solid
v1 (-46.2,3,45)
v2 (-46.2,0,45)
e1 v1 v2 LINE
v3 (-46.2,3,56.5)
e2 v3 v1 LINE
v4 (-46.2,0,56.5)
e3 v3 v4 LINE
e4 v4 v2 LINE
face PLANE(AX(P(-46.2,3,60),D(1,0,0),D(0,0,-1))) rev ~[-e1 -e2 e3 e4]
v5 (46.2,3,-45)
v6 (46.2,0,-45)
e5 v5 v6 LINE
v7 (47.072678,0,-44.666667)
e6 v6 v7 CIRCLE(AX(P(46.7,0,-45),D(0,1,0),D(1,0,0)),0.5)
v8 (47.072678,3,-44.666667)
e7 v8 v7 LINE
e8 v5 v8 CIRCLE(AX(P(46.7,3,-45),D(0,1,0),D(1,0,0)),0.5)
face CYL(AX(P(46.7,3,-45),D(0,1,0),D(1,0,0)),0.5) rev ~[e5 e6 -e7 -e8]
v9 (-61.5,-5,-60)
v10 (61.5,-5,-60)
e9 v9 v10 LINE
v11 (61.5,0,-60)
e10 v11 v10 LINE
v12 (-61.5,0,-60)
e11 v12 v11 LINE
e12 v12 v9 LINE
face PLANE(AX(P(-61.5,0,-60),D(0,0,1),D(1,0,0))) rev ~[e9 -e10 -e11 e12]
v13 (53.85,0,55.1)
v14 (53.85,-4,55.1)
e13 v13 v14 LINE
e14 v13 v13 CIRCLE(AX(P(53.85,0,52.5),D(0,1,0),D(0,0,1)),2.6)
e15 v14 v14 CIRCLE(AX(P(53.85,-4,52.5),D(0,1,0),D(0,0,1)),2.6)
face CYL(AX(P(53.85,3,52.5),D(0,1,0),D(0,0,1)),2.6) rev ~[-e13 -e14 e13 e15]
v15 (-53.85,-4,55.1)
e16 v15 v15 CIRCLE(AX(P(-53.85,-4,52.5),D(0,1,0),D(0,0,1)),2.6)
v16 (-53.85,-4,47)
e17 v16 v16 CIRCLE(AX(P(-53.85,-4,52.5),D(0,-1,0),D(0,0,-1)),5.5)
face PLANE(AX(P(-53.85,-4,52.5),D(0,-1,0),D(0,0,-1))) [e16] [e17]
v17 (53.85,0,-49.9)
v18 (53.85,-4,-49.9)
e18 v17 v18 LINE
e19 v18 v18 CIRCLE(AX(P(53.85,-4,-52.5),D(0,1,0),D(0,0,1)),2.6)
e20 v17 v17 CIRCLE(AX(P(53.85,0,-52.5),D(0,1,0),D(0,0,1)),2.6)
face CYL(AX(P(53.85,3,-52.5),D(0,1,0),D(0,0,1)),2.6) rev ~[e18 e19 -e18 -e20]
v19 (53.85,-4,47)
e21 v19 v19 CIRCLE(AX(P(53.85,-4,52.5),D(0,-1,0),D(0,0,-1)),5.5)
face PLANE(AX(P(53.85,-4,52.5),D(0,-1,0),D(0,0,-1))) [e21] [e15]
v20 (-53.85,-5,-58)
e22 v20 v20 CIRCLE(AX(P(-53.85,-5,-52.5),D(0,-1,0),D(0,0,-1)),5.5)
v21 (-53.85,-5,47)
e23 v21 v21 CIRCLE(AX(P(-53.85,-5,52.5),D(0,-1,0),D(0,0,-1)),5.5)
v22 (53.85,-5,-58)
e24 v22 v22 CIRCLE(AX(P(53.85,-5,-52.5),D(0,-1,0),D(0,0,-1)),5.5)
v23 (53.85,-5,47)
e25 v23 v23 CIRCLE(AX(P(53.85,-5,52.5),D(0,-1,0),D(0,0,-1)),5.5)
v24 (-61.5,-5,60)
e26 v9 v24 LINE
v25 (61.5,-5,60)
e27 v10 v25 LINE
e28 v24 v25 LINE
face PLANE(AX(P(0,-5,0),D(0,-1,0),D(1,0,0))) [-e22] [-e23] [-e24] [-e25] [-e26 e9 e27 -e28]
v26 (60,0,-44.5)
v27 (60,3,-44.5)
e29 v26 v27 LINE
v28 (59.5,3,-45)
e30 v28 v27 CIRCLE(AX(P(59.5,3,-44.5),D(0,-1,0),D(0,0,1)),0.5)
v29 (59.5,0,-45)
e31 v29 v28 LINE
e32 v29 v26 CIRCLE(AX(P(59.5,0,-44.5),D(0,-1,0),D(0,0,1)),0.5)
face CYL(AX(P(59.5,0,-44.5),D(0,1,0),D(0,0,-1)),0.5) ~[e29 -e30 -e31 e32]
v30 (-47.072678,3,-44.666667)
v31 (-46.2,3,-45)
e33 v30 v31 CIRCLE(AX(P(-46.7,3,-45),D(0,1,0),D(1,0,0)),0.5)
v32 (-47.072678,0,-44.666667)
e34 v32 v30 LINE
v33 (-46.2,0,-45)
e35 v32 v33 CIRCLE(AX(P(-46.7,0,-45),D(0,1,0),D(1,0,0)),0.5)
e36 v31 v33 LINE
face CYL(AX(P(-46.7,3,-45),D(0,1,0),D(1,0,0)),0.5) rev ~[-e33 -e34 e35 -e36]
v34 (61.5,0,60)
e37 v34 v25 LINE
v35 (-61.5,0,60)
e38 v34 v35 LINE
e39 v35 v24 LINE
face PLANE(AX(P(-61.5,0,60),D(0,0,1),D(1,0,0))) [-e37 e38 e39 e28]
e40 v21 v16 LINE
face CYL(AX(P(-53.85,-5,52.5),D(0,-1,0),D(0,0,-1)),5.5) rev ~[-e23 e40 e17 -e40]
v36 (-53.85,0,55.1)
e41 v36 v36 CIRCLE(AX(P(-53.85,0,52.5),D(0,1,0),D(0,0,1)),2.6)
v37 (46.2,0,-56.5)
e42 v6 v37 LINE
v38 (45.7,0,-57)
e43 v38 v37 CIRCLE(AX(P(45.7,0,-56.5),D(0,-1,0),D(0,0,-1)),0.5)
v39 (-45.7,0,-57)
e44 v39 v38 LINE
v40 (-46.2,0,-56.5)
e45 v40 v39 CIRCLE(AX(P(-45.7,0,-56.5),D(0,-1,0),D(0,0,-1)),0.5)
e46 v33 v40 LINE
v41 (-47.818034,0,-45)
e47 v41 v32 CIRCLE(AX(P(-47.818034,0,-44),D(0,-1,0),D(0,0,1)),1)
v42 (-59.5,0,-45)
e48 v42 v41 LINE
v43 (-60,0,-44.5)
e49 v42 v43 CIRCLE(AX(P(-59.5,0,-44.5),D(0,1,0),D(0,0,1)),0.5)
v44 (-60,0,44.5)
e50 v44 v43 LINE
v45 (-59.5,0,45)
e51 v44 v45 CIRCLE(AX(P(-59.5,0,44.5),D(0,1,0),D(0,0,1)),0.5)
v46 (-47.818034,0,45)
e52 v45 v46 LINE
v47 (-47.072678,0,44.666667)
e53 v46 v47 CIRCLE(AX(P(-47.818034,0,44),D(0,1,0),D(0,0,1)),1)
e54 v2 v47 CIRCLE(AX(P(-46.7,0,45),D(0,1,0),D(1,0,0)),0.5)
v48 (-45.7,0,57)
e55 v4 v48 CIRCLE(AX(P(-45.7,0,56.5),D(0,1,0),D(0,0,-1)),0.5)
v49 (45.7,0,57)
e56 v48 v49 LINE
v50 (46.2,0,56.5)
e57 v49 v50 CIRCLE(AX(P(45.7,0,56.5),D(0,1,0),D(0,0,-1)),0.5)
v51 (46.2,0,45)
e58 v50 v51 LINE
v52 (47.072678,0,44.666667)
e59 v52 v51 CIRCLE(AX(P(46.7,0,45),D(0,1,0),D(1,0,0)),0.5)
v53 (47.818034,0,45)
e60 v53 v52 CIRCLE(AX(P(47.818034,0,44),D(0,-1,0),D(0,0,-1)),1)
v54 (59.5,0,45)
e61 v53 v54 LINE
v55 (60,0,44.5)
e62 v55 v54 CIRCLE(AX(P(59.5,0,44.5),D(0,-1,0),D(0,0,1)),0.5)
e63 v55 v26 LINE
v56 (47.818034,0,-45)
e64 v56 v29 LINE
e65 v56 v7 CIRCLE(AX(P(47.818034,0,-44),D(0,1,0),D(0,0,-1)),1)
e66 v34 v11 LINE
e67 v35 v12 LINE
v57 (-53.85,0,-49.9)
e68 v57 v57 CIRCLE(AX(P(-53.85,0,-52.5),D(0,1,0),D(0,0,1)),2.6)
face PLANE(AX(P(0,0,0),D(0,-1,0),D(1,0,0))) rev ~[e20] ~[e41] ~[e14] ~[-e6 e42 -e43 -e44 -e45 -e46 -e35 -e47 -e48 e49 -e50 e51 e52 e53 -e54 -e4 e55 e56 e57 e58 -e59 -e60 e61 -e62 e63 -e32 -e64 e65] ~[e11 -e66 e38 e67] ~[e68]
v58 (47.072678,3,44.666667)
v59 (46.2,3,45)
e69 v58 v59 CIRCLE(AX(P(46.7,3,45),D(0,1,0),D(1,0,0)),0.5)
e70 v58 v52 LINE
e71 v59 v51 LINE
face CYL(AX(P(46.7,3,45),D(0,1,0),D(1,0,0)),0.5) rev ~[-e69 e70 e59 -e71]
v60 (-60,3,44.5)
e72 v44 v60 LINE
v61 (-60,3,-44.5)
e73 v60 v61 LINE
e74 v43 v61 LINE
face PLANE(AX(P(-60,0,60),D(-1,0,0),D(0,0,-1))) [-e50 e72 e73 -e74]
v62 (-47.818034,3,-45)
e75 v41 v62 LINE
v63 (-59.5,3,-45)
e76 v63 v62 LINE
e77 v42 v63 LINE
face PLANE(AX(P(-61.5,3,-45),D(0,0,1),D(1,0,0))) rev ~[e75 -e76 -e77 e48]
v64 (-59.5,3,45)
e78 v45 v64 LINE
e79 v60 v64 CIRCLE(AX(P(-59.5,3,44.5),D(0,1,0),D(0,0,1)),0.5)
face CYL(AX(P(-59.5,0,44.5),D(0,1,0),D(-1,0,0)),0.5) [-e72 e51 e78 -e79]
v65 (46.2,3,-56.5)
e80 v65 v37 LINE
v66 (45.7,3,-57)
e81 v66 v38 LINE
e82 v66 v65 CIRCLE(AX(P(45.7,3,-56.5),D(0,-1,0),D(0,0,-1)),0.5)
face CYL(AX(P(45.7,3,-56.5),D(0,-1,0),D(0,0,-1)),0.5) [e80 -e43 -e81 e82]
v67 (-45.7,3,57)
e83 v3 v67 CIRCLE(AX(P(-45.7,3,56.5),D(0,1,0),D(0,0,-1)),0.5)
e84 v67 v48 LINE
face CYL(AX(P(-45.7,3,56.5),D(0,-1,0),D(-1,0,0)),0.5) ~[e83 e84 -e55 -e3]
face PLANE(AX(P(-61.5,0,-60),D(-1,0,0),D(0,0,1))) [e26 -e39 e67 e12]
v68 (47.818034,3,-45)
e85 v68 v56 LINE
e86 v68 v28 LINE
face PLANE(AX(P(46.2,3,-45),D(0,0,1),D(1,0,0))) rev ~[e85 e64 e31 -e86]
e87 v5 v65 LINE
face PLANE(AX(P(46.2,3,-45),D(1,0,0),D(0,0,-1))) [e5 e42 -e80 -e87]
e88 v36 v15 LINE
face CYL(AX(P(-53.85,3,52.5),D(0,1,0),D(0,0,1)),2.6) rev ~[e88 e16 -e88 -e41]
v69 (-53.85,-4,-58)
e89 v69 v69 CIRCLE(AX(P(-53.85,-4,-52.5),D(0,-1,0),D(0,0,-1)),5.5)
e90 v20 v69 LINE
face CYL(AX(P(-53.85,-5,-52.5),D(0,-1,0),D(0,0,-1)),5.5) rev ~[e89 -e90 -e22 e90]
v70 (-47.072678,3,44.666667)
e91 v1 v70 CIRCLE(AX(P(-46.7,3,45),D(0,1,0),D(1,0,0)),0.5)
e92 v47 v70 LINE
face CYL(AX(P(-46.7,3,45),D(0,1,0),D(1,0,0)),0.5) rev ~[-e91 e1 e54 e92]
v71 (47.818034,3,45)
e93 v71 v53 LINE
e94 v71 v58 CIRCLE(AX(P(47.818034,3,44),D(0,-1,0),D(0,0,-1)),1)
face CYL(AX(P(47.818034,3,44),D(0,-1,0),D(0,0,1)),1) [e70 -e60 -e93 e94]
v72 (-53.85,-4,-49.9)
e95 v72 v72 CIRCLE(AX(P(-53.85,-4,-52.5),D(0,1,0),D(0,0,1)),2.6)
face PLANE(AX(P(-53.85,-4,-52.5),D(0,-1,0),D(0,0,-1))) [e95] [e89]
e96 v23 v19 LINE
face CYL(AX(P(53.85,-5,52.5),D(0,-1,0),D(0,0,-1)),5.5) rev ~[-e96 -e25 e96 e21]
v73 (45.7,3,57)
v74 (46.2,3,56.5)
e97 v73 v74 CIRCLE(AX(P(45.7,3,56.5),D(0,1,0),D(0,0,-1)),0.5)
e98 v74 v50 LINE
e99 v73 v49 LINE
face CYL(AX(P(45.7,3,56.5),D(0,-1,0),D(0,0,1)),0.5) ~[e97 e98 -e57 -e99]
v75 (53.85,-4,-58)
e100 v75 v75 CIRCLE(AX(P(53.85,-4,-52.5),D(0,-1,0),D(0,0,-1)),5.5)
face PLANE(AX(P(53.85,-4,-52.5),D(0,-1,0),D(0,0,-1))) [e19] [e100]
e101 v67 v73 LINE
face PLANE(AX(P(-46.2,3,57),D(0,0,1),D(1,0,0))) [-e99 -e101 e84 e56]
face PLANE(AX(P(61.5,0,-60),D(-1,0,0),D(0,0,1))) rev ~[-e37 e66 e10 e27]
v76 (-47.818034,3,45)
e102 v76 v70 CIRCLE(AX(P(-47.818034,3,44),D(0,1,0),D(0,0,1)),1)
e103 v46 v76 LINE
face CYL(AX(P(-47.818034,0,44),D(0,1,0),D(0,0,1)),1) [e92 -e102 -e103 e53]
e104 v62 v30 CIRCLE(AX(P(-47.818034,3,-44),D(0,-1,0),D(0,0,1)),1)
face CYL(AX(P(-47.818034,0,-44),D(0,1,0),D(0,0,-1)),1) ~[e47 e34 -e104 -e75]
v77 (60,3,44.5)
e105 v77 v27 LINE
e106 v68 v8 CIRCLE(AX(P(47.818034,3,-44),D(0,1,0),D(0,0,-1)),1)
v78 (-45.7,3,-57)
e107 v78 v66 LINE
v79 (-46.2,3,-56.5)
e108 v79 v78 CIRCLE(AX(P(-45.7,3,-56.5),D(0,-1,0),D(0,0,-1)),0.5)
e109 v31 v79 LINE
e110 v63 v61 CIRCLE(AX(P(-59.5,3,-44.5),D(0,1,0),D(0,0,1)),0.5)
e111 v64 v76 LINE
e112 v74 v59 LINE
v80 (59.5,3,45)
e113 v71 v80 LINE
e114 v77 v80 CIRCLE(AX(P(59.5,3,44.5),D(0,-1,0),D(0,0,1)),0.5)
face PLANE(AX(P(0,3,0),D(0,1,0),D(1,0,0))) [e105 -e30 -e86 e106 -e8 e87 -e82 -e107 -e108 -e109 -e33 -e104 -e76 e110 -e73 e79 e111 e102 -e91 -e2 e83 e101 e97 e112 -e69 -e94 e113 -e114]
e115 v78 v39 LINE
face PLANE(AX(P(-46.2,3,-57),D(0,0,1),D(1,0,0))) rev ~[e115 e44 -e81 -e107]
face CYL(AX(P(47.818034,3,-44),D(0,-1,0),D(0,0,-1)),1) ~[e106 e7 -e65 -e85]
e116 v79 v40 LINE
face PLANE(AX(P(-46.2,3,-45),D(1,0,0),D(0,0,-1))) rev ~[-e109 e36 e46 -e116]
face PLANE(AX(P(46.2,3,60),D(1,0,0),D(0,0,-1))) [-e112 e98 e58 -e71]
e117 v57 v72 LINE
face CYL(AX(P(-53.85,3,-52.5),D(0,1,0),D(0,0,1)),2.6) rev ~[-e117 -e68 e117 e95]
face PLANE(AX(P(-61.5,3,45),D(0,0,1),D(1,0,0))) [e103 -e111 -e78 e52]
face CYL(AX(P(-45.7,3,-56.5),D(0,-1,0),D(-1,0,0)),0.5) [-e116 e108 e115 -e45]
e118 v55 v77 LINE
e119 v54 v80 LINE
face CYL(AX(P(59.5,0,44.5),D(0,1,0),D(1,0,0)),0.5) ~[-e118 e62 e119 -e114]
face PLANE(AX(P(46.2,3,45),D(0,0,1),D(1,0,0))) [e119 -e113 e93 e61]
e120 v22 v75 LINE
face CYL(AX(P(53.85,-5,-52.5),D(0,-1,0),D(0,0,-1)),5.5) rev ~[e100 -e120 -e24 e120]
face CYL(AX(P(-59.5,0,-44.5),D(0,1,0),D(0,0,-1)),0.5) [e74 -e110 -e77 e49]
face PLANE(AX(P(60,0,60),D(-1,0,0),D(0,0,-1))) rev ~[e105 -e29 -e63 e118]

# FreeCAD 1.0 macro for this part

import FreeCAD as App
import Part
import Sketcher

V = App.Vector


def edges_at(feature, points):
    """Names of the edges that pass closest to the given points."""
    edges = feature.Shape.Edges
    near = lambda p: min(range(len(edges)), key=lambda i: edges[i].distToShape(Part.Vertex(*p))[0])
    return sorted({f"Edge{near(p) + 1}" for p in points})


def add_polygon(sketch, points):
    """Adds a closed chain of lines whose ends are joined by coincident constraints."""
    first, n = sketch.GeometryCount, len(points)
    for a, b in zip(points, points[1:] + points[:1]):
        sketch.addGeometry(Part.LineSegment(App.Vector(*a, 0), App.Vector(*b, 0)), False)
    for i in range(n):
        sketch.addConstraint(Sketcher.Constraint("Coincident", first + i, 2, first + (i + 1) % n, 1))

doc = App.newDocument("Part")
body = doc.addObject("PartDesign::Body", "Body")

# Sketch on XZ plane
sketch1 = body.newObject("Sketcher::SketchObject", "Sketch")
sketch1.AttachmentSupport = (doc.getObject("XZ_Plane"), [""])
sketch1.MapMode = "FlatFace"
add_polygon(sketch1, [(-60, -60), (-60, 60), (60, 60), (60, -60)])  # lines 0-3
sketch1.addConstraint([
    Sketcher.Constraint("Vertical", 0),
    Sketcher.Constraint("Horizontal", 1),
    Sketcher.Constraint("Vertical", 2),
    Sketcher.Constraint("Horizontal", 3),
    Sketcher.Constraint("Symmetric", 0, 2, 2, 2, -1, 1),
    Sketcher.Constraint("Equal", 3, 0),
    Sketcher.Constraint("DistanceX", 1, 1, 1, 2, 120.0),
])
pad1 = body.newObject("PartDesign::Pad", "Pad")
pad1.Profile = sketch1
pad1.Length = 3
pad1.Reversed = True

# Sketch on XZ plane
sketch2 = body.newObject("Sketcher::SketchObject", "Sketch001")
sketch2.AttachmentSupport = (doc.getObject("XZ_Plane"), [""])
sketch2.MapMode = "FlatFace"
add_polygon(sketch2, [(-61.5, 60), (-61.5, -60), (61.5, -60), (61.5, 60)])  # lines 0-3
sketch2.addConstraint([
    Sketcher.Constraint("Vertical", 0),
    Sketcher.Constraint("Horizontal", 1),
    Sketcher.Constraint("Vertical", 2),
    Sketcher.Constraint("Horizontal", 3),
    Sketcher.Constraint("Symmetric", 0, 2, 2, 2, -1, 1),
    Sketcher.Constraint("DistanceX", 1, 1, 1, 2, 123.0),
    Sketcher.Constraint("DistanceY", 0, 2, 0, 1, 120.0),
])
pad2 = body.newObject("PartDesign::Pad", "Pad001")
pad2.Profile = sketch2
pad2.Length = 5

# Sketch on XZ plane
sketch3 = body.newObject("Sketcher::SketchObject", "Sketch002")
sketch3.AttachmentSupport = (doc.getObject("XZ_Plane"), [""])
sketch3.MapMode = "FlatFace"
sketch3.AttachmentOffset = App.Placement(V(0, 0, -3), App.Rotation())
add_polygon(sketch3, [(-61.5, -60), (-61.5, -45), (-46.2, -45), (-46.2, -60)])  # lines 0-3
add_polygon(sketch3, [(46.2, -60), (46.2, -45), (61.5, -45), (61.5, -60)])  # lines 4-7
add_polygon(sketch3, [(-61.5, 45), (-61.5, 60), (-46.2, 60), (-46.2, 45)])  # lines 8-11
add_polygon(sketch3, [(46.2, 45), (46.2, 60), (61.5, 60), (61.5, 45)])  # lines 12-15
sketch3.addConstraint([
    Sketcher.Constraint("Vertical", 0),
    Sketcher.Constraint("Horizontal", 1),
    Sketcher.Constraint("Vertical", 2),
    Sketcher.Constraint("Horizontal", 3),
    Sketcher.Constraint("Vertical", 4),
    Sketcher.Constraint("Horizontal", 5),
    Sketcher.Constraint("Vertical", 6),
    Sketcher.Constraint("Horizontal", 7),
    Sketcher.Constraint("Vertical", 8),
    Sketcher.Constraint("Horizontal", 9),
    Sketcher.Constraint("Vertical", 10),
    Sketcher.Constraint("Horizontal", 11),
    Sketcher.Constraint("Vertical", 12),
    Sketcher.Constraint("Horizontal", 13),
    Sketcher.Constraint("Vertical", 14),
    Sketcher.Constraint("Horizontal", 15),
    Sketcher.Constraint("Symmetric", 6, 2, 8, 2, -1, 1),
    Sketcher.Constraint("Symmetric", 4, 2, 10, 2, -1, 1),
    Sketcher.Constraint("Symmetric", 2, 2, 12, 2, -1, 1),
    Sketcher.Constraint("Symmetric", 0, 2, 14, 2, -1, 1),
    Sketcher.Constraint("Symmetric", 1, 2, 4, 2, -2),
    Sketcher.Constraint("Symmetric", 3, 2, 6, 2, -2),
    Sketcher.Constraint("DistanceY", 0, 1, 0, 2, 15.0),
    Sketcher.Constraint("DistanceX", 1, 1, 1, 2, 15.3),
    Sketcher.Constraint("DistanceY", 0, 2, -1, 1, 45.0),
    Sketcher.Constraint("DistanceX", 0, 2, 5, 2, 123.0),
])
pocket1 = body.newObject("PartDesign::Pocket", "Pocket")
pocket1.Profile = sketch3
pocket1.Length = 3
pocket1.Reversed = True

# Sketch on XZ plane
sketch4 = body.newObject("Sketcher::SketchObject", "Sketch003")
sketch4.AttachmentSupport = (doc.getObject("XZ_Plane"), [""])
sketch4.MapMode = "FlatFace"
sketch4.AttachmentOffset = App.Placement(V(0, 0, -3), App.Rotation())
sketch4.addGeometry([
    Part.Circle(V(-53.85, -52.5, 0), V(0, 0, 1), 2.6),
    Part.Circle(V(53.85, -52.5, 0), V(0, 0, 1), 2.6),
    Part.Circle(V(-53.85, 52.5, 0), V(0, 0, 1), 2.6),
    Part.Circle(V(53.85, 52.5, 0), V(0, 0, 1), 2.6),
], False)
sketch4.addConstraint([
    Sketcher.Constraint("Equal", 0, 1),
    Sketcher.Constraint("Equal", 1, 2),
    Sketcher.Constraint("Equal", 2, 3),
    Sketcher.Constraint("Symmetric", 1, 3, 2, 3, -1, 1),
    Sketcher.Constraint("Symmetric", 0, 3, 3, 3, -1, 1),
    Sketcher.Constraint("Symmetric", 0, 3, 1, 3, -2),
    Sketcher.Constraint("Diameter", 0, 5.2),
    Sketcher.Constraint("DistanceY", 0, 3, 2, 3, 105.0),
    Sketcher.Constraint("DistanceX", 0, 3, 1, 3, 107.7),
])
pocket2 = body.newObject("PartDesign::Pocket", "Pocket001")
pocket2.Profile = sketch4
pocket2.Type = "ThroughAll"
pocket2.Reversed = True

# Sketch on XZ plane
sketch5 = body.newObject("Sketcher::SketchObject", "Sketch004")
sketch5.AttachmentSupport = (doc.getObject("XZ_Plane"), [""])
sketch5.MapMode = "FlatFace"
sketch5.AttachmentOffset = App.Placement(V(0, 0, 5), App.Rotation())
sketch5.addGeometry([
    Part.Circle(V(-53.85, 52.5, 0), V(0, 0, 1), 5.5),
    Part.Circle(V(-53.85, -52.5, 0), V(0, 0, 1), 5.5),
    Part.Circle(V(53.85, 52.5, 0), V(0, 0, 1), 5.5),
    Part.Circle(V(53.85, -52.5, 0), V(0, 0, 1), 5.5),
], False)
sketch5.addConstraint([
    Sketcher.Constraint("Equal", 0, 1),
    Sketcher.Constraint("Equal", 1, 2),
    Sketcher.Constraint("Equal", 2, 3),
    Sketcher.Constraint("Symmetric", 1, 3, 2, 3, -1, 1),
    Sketcher.Constraint("Symmetric", 0, 3, 3, 3, -1, 1),
    Sketcher.Constraint("Symmetric", 0, 3, 2, 3, -2),
    Sketcher.Constraint("Diameter", 0, 11.0),
    Sketcher.Constraint("DistanceY", 1, 3, 0, 3, 105.0),
    Sketcher.Constraint("DistanceX", 0, 3, 2, 3, 107.7),
])
pocket3 = body.newObject("PartDesign::Pocket", "Pocket002")
pocket3.Profile = sketch5
pocket3.Length = 1

# Sketch on XZ plane
sketch6 = body.newObject("Sketcher::SketchObject", "Sketch005")
sketch6.AttachmentSupport = (doc.getObject("XZ_Plane"), [""])
sketch6.MapMode = "FlatFace"
sketch6.AttachmentOffset = App.Placement(V(0, 0, -3), App.Rotation())
add_polygon(sketch6, [(-46.2, -60), (-46.2, -57), (46.2, -57), (46.2, -60)])  # lines 0-3
add_polygon(sketch6, [(-46.2, 57), (-46.2, 60), (46.2, 60), (46.2, 57)])  # lines 4-7
sketch6.addConstraint([
    Sketcher.Constraint("Vertical", 0),
    Sketcher.Constraint("Horizontal", 1),
    Sketcher.Constraint("Vertical", 2),
    Sketcher.Constraint("Horizontal", 3),
    Sketcher.Constraint("Vertical", 4),
    Sketcher.Constraint("Horizontal", 5),
    Sketcher.Constraint("Vertical", 6),
    Sketcher.Constraint("Horizontal", 7),
    Sketcher.Constraint("Symmetric", 2, 2, 4, 2, -1, 1),
    Sketcher.Constraint("Symmetric", 0, 2, 6, 2, -1, 1),
    Sketcher.Constraint("Vertical", 3, 2, 4, 2),
    Sketcher.Constraint("DistanceY", 0, 1, 0, 2, 3.0),
    Sketcher.Constraint("DistanceX", 1, 1, 1, 2, 92.4),
    Sketcher.Constraint("DistanceY", 0, 2, -1, 1, 57.0),
])
pocket4 = body.newObject("PartDesign::Pocket", "Pocket003")
pocket4.Profile = sketch6
pocket4.Length = 3
pocket4.Reversed = True

# Sketch on XZ plane
sketch7 = body.newObject("Sketcher::SketchObject", "Sketch006")
sketch7.AttachmentSupport = (doc.getObject("XZ_Plane"), [""])
sketch7.MapMode = "FlatFace"
sketch7.AttachmentOffset = App.Placement(V(0, 0, -3), App.Rotation())
sketch7.addGeometry([
    Part.Circle(V(-46.7, -45, 0), V(0, 0, 1), 0.5),
    Part.Circle(V(46.7, -45, 0), V(0, 0, 1), 0.5),
    Part.Circle(V(-46.7, 45, 0), V(0, 0, 1), 0.5),
    Part.Circle(V(46.7, 45, 0), V(0, 0, 1), 0.5),
], False)
sketch7.addConstraint([
    Sketcher.Constraint("Equal", 0, 1),
    Sketcher.Constraint("Equal", 1, 2),
    Sketcher.Constraint("Equal", 2, 3),
    Sketcher.Constraint("Symmetric", 1, 3, 2, 3, -1, 1),
    Sketcher.Constraint("Symmetric", 0, 3, 3, 3, -1, 1),
    Sketcher.Constraint("Symmetric", 0, 3, 1, 3, -2),
    Sketcher.Constraint("Diameter", 0, 1.0),
    Sketcher.Constraint("DistanceY", 0, 3, -1, 1, 45.0),
    Sketcher.Constraint("DistanceX", 0, 3, -1, 1, 46.7),
])
pocket5 = body.newObject("PartDesign::Pocket", "Pocket004")
pocket5.Profile = sketch7
pocket5.Length = 3
pocket5.Reversed = True
doc.recompute()

fillet = body.newObject("PartDesign::Fillet", "Fillet")
fillet.Base = (pocket5, edges_at(pocket5, [
    (47.2, 1.5, -45),
    (-47.2, 1.5, 45),
    (47.2, 1.5, 45),
    (-47.2, 1.5, -45),
]))
fillet.Radius = 1
doc.recompute()

fillet2 = body.newObject("PartDesign::Fillet", "Fillet001")
fillet2.Base = (fillet, edges_at(fillet, [
    (46.2, 1.5, -57),
    (-46.2, 1.5, -57),
    (-46.2, 1.5, 57),
    (46.2, 1.5, 57),
    (60, 1.5, -45),
    (-60, 1.5, 45),
    (60, 1.5, 45),
    (-60, 1.5, -45),
]))
fillet2.Radius = 0.5

doc.recompute()
